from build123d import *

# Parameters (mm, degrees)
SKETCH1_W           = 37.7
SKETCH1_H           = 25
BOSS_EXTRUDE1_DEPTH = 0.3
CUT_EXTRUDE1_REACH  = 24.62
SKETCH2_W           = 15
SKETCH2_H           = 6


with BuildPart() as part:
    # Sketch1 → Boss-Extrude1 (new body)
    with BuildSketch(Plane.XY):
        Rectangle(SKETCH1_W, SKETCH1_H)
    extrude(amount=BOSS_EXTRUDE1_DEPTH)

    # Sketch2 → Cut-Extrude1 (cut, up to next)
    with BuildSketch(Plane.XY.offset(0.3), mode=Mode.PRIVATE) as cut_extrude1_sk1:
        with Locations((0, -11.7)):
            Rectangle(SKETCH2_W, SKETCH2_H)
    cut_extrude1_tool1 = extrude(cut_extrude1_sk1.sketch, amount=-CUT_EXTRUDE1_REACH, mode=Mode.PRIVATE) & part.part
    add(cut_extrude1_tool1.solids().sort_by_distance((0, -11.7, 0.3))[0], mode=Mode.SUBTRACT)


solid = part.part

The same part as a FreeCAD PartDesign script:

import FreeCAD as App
import Part
import Sketcher
from FreeCAD import Vector
Q = App.Units.Quantity


def add_polygon(sketch, points):
    """Adds a closed chain of lines whose ends are joined by coincident constraints."""
    first, n = sketch.GeometryCount, len(points)
    for a, b in zip(points, points[1:] + points[:1]):
        sketch.addGeometry(Part.LineSegment(App.Vector(*a, 0), App.Vector(*b, 0)), False)
    for i in range(n):
        sketch.addConstraint(Sketcher.Constraint("Coincident", first + i, 2, first + (i + 1) % n, 1))

doc = App.newDocument("Part")
body = doc.addObject("PartDesign::Body", "Body")

# Sketch on XY plane
sketch1 = body.newObject("Sketcher::SketchObject", "Sketch")
sketch1.AttachmentSupport = (doc.getObject("XY_Plane"), [""])
sketch1.MapMode = "FlatFace"
add_polygon(sketch1, [(-19, 12), (-19, -12), (19, -12), (19, 12)])  # lines 0-3
sketch1.addConstraint([
    Sketcher.Constraint("Vertical", 0),
    Sketcher.Constraint("Horizontal", 1),
    Sketcher.Constraint("Vertical", 2),
    Sketcher.Constraint("Horizontal", 3),
    Sketcher.Constraint("Symmetric", 0, 2, 2, 2, -1, 1),
    Sketcher.Constraint("DistanceY", 0, 2, 0, 1, Q("25 mm")),
    Sketcher.Constraint("DistanceX", 1, 1, 1, 2, Q("37.7 mm")),
])
pad1 = body.newObject("PartDesign::Pad", "Pad")
pad1.Profile = sketch1
pad1.Length = 0.3

# Sketch on XY plane
sketch2 = body.newObject("Sketcher::SketchObject", "Sketch001")
sketch2.AttachmentSupport = (doc.getObject("XY_Plane"), [""])
sketch2.MapMode = "FlatFace"
sketch2.AttachmentOffset = App.Placement(Vector(0, 0, 0.3), App.Rotation())
add_polygon(sketch2, [(-8, -9), (-8, -15), (8, -15), (8, -9)])  # lines 0-3
sketch2.addConstraint([
    Sketcher.Constraint("Vertical", 0),
    Sketcher.Constraint("Horizontal", 1),
    Sketcher.Constraint("Vertical", 2),
    Sketcher.Constraint("Horizontal", 3),
    Sketcher.Constraint("DistanceX", 1, 1, 1, 2, Q("15 mm")),
    Sketcher.Constraint("DistanceY", 0, 2, 0, 1, Q("6 mm")),
    Sketcher.Constraint("DistanceX", 0, 2, -1, 1, Q("7.5 mm")),
    Sketcher.Constraint("DistanceY", 0, 2, -1, 1, Q("14.7 mm")),
])
pocket1 = body.newObject("PartDesign::Pocket", "Pocket")
pocket1.Profile = sketch2
pocket1.Type = "UpToFirst"

doc.recompute()
